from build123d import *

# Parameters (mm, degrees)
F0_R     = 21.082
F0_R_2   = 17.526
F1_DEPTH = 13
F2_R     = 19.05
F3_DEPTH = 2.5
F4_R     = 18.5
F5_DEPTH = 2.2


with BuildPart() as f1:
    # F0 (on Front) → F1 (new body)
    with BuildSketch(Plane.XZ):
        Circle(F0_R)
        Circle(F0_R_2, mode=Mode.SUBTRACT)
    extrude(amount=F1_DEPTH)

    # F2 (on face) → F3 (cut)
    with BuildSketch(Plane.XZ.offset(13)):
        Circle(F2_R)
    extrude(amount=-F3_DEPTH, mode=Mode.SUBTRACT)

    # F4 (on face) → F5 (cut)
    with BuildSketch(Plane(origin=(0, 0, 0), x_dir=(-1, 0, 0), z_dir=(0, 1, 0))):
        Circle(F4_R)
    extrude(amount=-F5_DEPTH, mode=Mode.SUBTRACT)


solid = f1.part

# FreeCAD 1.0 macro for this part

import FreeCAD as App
import Part
import Sketcher
from FreeCAD import Vector
Q = App.Units.Quantity

doc = App.newDocument("Part")
params = doc.addObject("Spreadsheet::Sheet", "Params")
for row, (alias, value) in enumerate([
    ("pad1_length", "13 mm"),
    ("sketch2_diameter", "38.1 mm"),
    ("pocket1_length", "2.5 mm"),
    ("sketch3_diameter", "37 mm"),
    ("pocket2_length", "2.2 mm"),
], start=1):
    params.set(f"A{row}", alias)
    params.set(f"B{row}", "=" + value)
    params.setAlias(f"B{row}", alias)

body = doc.addObject("PartDesign::Body", "Body")

# Sketch on XZ plane
sketch1 = doc.addObject("Sketcher::SketchObject", "Sketch")
body.addObject(sketch1)
sketch1.AttachmentSupport = (doc.XZ_Plane, [""])
sketch1.MapMode = "FlatFace"
sketch1.addGeometry([
    Part.Circle(Vector(0, 0, 0), Vector(0, 0, 1), 21),
    Part.Circle(Vector(0, 0, 0), Vector(0, 0, 1), 18),
], False)
sketch1.addConstraint([
    Sketcher.Constraint("Coincident", 0, 3, -1, 1),
    Sketcher.Constraint("Coincident", 1, 3, -1, 1),
    Sketcher.Constraint("Diameter", 0, Q("42.164 mm")),
    Sketcher.Constraint("Diameter", 1, Q("35.052 mm")),
])
pad1 = doc.addObject("PartDesign::Pad", "Pad")
body.addObject(pad1)
pad1.Profile = sketch1
pad1.setExpression("Length", "Params.pad1_length")

# Sketch on XZ plane
sketch2 = doc.addObject("Sketcher::SketchObject", "Sketch001")
body.addObject(sketch2)
sketch2.AttachmentSupport = (doc.XZ_Plane, [""])
sketch2.MapMode = "FlatFace"
sketch2.AttachmentOffset = App.Placement(Vector(0, 0, 13), App.Rotation())
sketch2.addGeometry(Part.Circle(Vector(0, 0, 0), Vector(0, 0, 1), 19), False)
sketch2.addConstraint([
    Sketcher.Constraint("Coincident", 0, 3, -1, 1),
    Sketcher.Constraint("Diameter", 0, Q("38.1 mm")),
])
sketch2.setExpression("Constraints[1]", "Params.sketch2_diameter")
pocket1 = doc.addObject("PartDesign::Pocket", "Pocket")
body.addObject(pocket1)
pocket1.Profile = sketch2
pocket1.setExpression("Length", "Params.pocket1_length")

# Sketch on XZ plane
sketch3 = doc.addObject("Sketcher::SketchObject", "Sketch002")
body.addObject(sketch3)
sketch3.AttachmentSupport = (doc.XZ_Plane, [""])
sketch3.MapMode = "FlatFace"
sketch3.addGeometry(Part.Circle(Vector(0, 0, 0), Vector(0, 0, 1), 18), False)
sketch3.addConstraint([
    Sketcher.Constraint("Coincident", 0, 3, -1, 1),
    Sketcher.Constraint("Diameter", 0, Q("37 mm")),
])
sketch3.setExpression("Constraints[1]", "Params.sketch3_diameter")
pocket2 = doc.addObject("PartDesign::Pocket", "Pocket001")
body.addObject(pocket2)
pocket2.Profile = sketch3
pocket2.setExpression("Length", "Params.pocket2_length")
pocket2.Reversed = True

doc.recompute()
